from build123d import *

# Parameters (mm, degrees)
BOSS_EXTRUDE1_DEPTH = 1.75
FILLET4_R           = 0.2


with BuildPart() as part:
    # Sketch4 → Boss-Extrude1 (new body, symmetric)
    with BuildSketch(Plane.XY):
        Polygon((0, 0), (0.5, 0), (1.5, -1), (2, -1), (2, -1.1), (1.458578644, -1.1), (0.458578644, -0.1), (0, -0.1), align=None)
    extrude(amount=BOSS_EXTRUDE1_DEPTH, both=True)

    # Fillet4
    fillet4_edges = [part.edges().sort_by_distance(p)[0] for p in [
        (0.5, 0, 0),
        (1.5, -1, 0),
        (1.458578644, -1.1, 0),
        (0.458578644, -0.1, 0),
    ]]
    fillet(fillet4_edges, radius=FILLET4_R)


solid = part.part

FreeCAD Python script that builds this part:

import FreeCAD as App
import Part
import Sketcher
Q = App.Units.Quantity


def edges_at(feature, points):
    """Names of the edges that pass closest to the given points."""
    edges = feature.Shape.Edges
    near = lambda p: min(range(len(edges)), key=lambda i: edges[i].distToShape(Part.Vertex(*p))[0])
    return sorted({f"Edge{near(p) + 1}" for p in points})


def add_polygon(sketch, points):
    """Adds a closed chain of lines whose ends are joined by coincident constraints."""
    first, n = sketch.GeometryCount, len(points)
    for a, b in zip(points, points[1:] + points[:1]):
        sketch.addGeometry(Part.LineSegment(App.Vector(*a, 0), App.Vector(*b, 0)), False)
    for i in range(n):
        sketch.addConstraint(Sketcher.Constraint("Coincident", first + i, 2, first + (i + 1) % n, 1))

doc = App.newDocument("Part")
body = doc.addObject("PartDesign::Body", "Body")

# Sketch on XY plane
sketch1 = body.newObject("Sketcher::SketchObject", "Sketch")
sketch1.AttachmentSupport = (doc.getObject("XY_Plane"), [""])
sketch1.MapMode = "FlatFace"
add_polygon(sketch1, [(0.5, 0), (0, 0), (0, -0.1), (0.458579, -0.1), (1.458579, -1.1), (2, -1.1), (2, -1), (1.5, -1)])  # lines 0-7
sketch1.addConstraint([
    Sketcher.Constraint("Horizontal", 0),
    Sketcher.Constraint("Vertical", 1),
    Sketcher.Constraint("Horizontal", 2),
    Sketcher.Constraint("Horizontal", 4),
    Sketcher.Constraint("Vertical", 5),
    Sketcher.Constraint("Horizontal", 6),
    Sketcher.Constraint("Coincident", 0, 2, -1, 1),
    Sketcher.Constraint("Parallel", 3, 7),
    Sketcher.Constraint("Equal", 0, 6),
    Sketcher.Constraint("Equal", 1, 5),
    Sketcher.Constraint("Angle", 3, Q("-45 deg")),
    Sketcher.Constraint("DistanceX", 0, 2, 0, 1, 0.5),
    Sketcher.Constraint("DistanceY", 1, 2, 1, 1, 0.1),
    Sketcher.Constraint("DistanceX", -1, 1, 4, 2, 2.0),
    Sketcher.Constraint("DistanceX", 2, 1, 2, 2, 0.458579),
])
pad1 = body.newObject("PartDesign::Pad", "Pad")
pad1.Profile = sketch1
pad1.Length = 3.5
pad1.Midplane = True
doc.recompute()

fillet = body.newObject("PartDesign::Fillet", "Fillet")
fillet.Base = (pad1, edges_at(pad1, [
    (0.5, 0, 0),
    (1.5, -1, 0),
    (1.459, -1.1, 0),
    (0.459, -0.1, 0),
]))
fillet.Radius = 0.2

doc.recompute()
